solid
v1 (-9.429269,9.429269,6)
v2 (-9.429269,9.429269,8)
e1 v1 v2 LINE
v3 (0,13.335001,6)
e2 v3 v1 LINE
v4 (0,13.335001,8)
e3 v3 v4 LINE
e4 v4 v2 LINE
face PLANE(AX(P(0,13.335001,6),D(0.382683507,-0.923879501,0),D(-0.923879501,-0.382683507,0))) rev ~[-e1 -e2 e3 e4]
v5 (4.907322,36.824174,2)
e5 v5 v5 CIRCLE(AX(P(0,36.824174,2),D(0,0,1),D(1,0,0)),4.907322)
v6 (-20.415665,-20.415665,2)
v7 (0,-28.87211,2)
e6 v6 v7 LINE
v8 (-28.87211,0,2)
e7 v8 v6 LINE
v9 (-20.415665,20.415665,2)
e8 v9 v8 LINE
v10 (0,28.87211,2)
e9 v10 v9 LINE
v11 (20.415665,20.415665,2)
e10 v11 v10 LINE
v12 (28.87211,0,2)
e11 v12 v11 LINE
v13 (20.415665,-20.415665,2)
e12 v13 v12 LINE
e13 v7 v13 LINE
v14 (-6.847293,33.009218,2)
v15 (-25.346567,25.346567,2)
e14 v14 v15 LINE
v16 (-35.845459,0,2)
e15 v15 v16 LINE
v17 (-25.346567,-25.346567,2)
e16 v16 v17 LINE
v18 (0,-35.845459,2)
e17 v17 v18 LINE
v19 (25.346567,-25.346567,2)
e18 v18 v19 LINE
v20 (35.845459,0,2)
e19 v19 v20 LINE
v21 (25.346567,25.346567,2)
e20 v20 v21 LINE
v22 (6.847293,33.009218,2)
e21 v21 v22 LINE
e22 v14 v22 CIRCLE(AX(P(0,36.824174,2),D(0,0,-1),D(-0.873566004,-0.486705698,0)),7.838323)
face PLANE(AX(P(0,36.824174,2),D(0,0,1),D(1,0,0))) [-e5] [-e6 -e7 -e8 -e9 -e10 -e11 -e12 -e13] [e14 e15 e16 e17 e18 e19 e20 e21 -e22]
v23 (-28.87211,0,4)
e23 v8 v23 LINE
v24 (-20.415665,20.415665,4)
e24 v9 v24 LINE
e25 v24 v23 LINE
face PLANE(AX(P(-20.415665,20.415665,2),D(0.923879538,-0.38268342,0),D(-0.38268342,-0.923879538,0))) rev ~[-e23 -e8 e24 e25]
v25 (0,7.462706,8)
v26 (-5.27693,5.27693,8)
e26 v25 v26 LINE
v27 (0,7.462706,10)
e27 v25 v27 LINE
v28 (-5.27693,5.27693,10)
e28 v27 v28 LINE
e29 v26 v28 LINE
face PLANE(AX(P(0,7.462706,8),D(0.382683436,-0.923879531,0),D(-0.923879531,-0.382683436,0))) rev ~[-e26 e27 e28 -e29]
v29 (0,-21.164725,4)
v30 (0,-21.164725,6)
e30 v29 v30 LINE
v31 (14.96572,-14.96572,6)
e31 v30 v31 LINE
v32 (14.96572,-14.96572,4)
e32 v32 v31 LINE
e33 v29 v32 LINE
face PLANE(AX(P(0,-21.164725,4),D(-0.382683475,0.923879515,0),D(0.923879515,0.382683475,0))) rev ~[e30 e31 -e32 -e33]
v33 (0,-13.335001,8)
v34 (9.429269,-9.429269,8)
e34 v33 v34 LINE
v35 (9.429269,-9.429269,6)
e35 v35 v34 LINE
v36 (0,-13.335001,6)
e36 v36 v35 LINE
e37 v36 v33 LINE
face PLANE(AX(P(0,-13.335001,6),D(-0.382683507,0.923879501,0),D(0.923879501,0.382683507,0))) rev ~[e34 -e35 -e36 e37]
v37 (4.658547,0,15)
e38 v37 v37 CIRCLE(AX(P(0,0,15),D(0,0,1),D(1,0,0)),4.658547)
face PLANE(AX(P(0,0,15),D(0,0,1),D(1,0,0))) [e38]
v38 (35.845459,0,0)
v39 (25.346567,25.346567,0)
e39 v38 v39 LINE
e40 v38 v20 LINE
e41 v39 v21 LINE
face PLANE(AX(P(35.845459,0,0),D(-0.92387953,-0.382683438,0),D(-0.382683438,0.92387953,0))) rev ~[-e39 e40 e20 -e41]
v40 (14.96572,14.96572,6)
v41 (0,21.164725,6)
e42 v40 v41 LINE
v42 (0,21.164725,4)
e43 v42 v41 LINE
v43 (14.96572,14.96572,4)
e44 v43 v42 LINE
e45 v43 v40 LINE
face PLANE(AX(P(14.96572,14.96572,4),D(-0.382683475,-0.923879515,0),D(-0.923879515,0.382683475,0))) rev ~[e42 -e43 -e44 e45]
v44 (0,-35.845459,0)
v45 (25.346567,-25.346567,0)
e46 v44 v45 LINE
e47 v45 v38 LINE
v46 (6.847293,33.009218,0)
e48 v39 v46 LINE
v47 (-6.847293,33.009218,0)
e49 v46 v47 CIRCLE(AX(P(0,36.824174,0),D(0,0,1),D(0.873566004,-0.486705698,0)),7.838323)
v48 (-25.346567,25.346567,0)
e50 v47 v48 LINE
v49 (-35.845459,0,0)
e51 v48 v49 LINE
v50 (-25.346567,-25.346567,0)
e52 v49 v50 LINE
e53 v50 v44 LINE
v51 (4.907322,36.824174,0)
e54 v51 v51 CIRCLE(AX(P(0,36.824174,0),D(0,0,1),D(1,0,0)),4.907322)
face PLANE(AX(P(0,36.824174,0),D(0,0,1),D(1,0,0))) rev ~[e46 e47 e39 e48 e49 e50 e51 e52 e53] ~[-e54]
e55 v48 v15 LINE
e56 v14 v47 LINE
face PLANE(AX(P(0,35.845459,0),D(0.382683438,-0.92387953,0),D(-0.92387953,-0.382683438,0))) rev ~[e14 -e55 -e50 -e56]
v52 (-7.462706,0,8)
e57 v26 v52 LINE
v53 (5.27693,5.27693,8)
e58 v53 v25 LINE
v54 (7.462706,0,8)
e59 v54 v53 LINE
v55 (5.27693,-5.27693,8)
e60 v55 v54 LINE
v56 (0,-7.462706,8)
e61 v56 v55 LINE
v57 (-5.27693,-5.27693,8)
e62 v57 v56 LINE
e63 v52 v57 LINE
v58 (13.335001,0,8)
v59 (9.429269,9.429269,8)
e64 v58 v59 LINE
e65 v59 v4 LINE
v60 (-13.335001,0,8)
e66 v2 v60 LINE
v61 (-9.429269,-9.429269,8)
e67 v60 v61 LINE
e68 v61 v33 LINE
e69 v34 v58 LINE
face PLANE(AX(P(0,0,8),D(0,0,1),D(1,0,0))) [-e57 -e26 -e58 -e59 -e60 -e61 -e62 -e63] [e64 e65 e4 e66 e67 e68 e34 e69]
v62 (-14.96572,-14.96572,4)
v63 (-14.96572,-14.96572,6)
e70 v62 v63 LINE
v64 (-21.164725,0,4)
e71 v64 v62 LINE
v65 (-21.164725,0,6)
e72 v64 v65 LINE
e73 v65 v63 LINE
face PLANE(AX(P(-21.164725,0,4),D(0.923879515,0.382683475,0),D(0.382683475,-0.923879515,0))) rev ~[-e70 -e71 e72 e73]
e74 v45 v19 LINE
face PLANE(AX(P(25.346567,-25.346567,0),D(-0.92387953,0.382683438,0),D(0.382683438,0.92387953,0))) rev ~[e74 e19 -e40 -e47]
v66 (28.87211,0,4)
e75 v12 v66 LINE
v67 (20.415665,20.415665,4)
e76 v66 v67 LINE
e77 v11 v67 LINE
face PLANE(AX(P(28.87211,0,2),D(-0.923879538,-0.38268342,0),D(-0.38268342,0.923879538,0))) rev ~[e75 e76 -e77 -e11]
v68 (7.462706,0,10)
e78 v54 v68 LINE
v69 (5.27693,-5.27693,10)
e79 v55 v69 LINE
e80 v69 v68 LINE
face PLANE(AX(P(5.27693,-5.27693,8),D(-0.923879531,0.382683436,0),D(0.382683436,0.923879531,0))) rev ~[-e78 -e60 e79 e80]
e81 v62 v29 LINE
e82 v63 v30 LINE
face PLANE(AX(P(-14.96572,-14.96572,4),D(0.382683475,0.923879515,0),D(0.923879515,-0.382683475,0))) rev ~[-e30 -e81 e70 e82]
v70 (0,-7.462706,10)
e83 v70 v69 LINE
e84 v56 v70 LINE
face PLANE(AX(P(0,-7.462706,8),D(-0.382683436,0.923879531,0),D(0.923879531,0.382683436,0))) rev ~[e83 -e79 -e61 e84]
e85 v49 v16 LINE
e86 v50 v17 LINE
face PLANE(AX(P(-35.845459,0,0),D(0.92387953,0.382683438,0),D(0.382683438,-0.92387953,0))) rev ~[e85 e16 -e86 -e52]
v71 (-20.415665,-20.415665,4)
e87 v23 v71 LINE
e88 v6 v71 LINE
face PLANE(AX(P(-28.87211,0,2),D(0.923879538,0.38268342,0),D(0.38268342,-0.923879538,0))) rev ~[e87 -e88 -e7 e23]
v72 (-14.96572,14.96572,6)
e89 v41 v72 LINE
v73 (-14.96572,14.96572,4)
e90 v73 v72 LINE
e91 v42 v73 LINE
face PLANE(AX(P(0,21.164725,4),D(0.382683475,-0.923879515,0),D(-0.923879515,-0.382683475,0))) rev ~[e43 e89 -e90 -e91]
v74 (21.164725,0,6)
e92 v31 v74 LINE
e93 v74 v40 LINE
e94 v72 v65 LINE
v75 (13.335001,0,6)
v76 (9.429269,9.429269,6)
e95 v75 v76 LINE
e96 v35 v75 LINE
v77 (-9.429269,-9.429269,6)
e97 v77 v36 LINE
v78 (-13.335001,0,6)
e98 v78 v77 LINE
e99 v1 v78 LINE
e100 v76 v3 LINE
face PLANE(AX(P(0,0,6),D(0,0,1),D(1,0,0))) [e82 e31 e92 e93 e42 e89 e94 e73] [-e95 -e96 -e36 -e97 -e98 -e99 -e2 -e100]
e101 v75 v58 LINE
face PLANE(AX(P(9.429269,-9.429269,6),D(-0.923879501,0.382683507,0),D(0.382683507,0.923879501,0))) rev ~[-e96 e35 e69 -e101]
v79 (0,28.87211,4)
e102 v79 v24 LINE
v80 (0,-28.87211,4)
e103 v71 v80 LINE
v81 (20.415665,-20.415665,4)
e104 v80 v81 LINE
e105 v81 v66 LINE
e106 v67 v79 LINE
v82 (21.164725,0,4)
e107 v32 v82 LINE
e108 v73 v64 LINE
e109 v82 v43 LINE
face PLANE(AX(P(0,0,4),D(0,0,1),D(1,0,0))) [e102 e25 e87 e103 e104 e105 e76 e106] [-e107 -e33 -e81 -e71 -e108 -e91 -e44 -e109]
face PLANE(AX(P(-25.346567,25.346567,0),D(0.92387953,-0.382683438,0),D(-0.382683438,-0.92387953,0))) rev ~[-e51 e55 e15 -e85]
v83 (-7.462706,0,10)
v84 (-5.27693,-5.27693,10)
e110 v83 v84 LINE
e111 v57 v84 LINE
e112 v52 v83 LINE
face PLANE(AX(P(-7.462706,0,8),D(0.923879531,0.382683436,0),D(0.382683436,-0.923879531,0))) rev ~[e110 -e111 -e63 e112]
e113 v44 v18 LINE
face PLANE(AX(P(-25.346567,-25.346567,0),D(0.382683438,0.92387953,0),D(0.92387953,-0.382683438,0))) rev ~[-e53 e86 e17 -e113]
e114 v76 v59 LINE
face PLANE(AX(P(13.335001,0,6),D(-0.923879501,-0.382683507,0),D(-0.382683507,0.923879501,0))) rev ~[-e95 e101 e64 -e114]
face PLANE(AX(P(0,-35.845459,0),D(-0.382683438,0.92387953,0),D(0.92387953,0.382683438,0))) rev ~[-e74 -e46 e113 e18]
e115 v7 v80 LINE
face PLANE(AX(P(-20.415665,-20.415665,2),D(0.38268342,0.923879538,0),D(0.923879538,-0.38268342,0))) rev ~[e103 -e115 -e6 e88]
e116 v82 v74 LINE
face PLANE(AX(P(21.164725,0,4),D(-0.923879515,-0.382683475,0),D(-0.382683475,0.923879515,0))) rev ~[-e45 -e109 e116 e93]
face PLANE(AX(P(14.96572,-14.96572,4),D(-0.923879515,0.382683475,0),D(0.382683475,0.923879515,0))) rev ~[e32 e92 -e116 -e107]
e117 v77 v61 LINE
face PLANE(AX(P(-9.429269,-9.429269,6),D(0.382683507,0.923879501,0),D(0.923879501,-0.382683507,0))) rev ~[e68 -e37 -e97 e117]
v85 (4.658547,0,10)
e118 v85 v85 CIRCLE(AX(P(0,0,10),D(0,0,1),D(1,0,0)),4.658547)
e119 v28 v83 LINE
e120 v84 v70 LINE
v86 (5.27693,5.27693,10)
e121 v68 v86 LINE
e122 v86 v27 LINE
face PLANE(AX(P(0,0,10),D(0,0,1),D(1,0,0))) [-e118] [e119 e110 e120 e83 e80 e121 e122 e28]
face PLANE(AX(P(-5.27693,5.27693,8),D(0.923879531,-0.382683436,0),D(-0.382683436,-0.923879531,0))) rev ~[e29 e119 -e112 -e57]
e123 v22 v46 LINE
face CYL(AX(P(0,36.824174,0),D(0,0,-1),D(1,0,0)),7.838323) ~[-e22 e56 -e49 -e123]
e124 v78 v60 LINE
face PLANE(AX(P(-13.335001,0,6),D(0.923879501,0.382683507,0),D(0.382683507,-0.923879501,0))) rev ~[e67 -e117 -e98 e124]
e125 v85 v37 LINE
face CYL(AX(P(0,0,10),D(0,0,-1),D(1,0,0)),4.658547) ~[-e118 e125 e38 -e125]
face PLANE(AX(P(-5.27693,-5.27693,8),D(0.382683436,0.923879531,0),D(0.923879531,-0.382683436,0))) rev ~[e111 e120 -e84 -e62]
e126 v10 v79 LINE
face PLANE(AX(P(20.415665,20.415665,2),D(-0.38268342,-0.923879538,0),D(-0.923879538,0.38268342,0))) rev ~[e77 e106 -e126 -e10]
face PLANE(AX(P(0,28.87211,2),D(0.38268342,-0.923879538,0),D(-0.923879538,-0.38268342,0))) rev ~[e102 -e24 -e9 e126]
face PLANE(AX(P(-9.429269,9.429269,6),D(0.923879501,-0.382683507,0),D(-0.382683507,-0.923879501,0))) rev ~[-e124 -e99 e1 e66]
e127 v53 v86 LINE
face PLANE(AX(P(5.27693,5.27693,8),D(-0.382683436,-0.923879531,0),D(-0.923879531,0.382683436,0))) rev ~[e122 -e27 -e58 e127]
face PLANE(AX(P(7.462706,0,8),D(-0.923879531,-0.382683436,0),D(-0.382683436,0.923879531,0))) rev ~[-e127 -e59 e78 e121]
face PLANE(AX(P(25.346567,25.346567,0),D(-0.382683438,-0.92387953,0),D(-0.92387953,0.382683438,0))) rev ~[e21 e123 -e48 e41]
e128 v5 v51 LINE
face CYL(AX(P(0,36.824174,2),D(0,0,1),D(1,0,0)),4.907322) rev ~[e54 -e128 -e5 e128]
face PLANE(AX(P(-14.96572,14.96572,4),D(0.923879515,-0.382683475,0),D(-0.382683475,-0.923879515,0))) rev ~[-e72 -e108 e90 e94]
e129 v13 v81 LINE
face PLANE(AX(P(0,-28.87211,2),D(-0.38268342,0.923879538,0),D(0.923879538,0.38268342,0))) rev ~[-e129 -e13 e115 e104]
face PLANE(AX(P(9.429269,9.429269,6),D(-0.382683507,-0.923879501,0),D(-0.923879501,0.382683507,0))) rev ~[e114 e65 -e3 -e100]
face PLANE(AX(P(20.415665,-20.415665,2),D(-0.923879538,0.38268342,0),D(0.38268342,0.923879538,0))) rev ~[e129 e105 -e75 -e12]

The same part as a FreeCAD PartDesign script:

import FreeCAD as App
import Part
import Sketcher
Q = App.Units.Quantity

doc = App.newDocument("Part")
params = doc.addObject("Spreadsheet::Sheet", "Params")
for row, (alias, value) in enumerate([
    ("pad1_length", "2 mm"),
    ("pad2_length", "2 mm"),
    ("pad3_length", "2 mm"),
    ("pad4_length", "2 mm"),
    ("pad5_length", "2 mm"),
    ("pad6_length", "2 mm"),
    ("pocket1_length", "25.4 mm"),
    ("pad7_length", "5 mm"),
], start=1):
    params.set(f"A{row}", alias)
    params.set(f"B{row}", "=" + value)
    params.setAlias(f"B{row}", alias)

body = doc.addObject("PartDesign::Body", "Body")

# Sketch on XY plane
sketch1 = body.newObject("Sketcher::SketchObject", "Sketch")
sketch1.AttachmentSupport = (doc.getObject("XY_Plane"), [""])
sketch1.MapMode = "FlatFace"
sketch1.addGeometry([
    Part.LineSegment(App.Vector(25, 25, 0), App.Vector(0, 36, 0)),  # 0
    Part.LineSegment(App.Vector(0, 36, 0), App.Vector(-25, 25, 0)),  # 1
    Part.LineSegment(App.Vector(-25, 25, 0), App.Vector(-36, 0, 0)),  # 2
    Part.LineSegment(App.Vector(-36, 0, 0), App.Vector(-25, -25, 0)),  # 3
    Part.LineSegment(App.Vector(-25, -25, 0), App.Vector(0, -36, 0)),  # 4
    Part.LineSegment(App.Vector(0, -36, 0), App.Vector(25, -25, 0)),  # 5
    Part.LineSegment(App.Vector(25, -25, 0), App.Vector(36, 0, 0)),  # 6
    Part.LineSegment(App.Vector(36, 0, 0), App.Vector(25, 25, 0)),  # 7
], False)
sketch1.addConstraint([
    Sketcher.Constraint("Coincident", 0, 2, 1, 1),
    Sketcher.Constraint("Coincident", 1, 2, 2, 1),
    Sketcher.Constraint("Coincident", 2, 2, 3, 1),
    Sketcher.Constraint("Coincident", 3, 2, 4, 1),
    Sketcher.Constraint("Coincident", 4, 2, 5, 1),
    Sketcher.Constraint("Coincident", 5, 2, 6, 1),
    Sketcher.Constraint("Coincident", 6, 2, 7, 1),
    Sketcher.Constraint("Coincident", 7, 2, 0, 1),
    Sketcher.Constraint("Symmetric", 0, 2, 4, 2, -1, 1),
    Sketcher.Constraint("Symmetric", 1, 2, 5, 2, -1, 1),
    Sketcher.Constraint("Symmetric", 2, 2, 6, 2, -1, 1),
    Sketcher.Constraint("Symmetric", 3, 2, 7, 2, -1, 1),
    Sketcher.Constraint("Symmetric", 3, 2, 5, 2, -2),
    Sketcher.Constraint("PointOnObject", 0, 2, -2),
    Sketcher.Constraint("PointOnObject", 2, 2, -1),
    Sketcher.Constraint("Perpendicular", 0, 2),
    Sketcher.Constraint("Equal", 1, 2),
    Sketcher.Constraint("Angle", 0, Q("157.5 deg")),
    Sketcher.Constraint("DistanceY", -1, 1, 0, 2, 35.845459),
])
pad1 = body.newObject("PartDesign::Pad", "Pad")
pad1.Profile = sketch1
pad1.setExpression("Length", "Params.pad1_length")

# Sketch on XY plane
sketch2 = body.newObject("Sketcher::SketchObject", "Sketch001")
sketch2.AttachmentSupport = (doc.getObject("XY_Plane"), [""])
sketch2.MapMode = "FlatFace"
sketch2.AttachmentOffset = App.Placement(App.Vector(0, 0, 2), App.Rotation())
sketch2.addGeometry([
    Part.LineSegment(App.Vector(20, 20, 0), App.Vector(0, 29, 0)),  # 0
    Part.LineSegment(App.Vector(0, 29, 0), App.Vector(-20, 20, 0)),  # 1
    Part.LineSegment(App.Vector(-20, 20, 0), App.Vector(-29, 0, 0)),  # 2
    Part.LineSegment(App.Vector(-29, 0, 0), App.Vector(-20, -20, 0)),  # 3
    Part.LineSegment(App.Vector(-20, -20, 0), App.Vector(0, -29, 0)),  # 4
    Part.LineSegment(App.Vector(0, -29, 0), App.Vector(20, -20, 0)),  # 5
    Part.LineSegment(App.Vector(20, -20, 0), App.Vector(29, 0, 0)),  # 6
    Part.LineSegment(App.Vector(29, 0, 0), App.Vector(20, 20, 0)),  # 7
], False)
sketch2.addConstraint([
    Sketcher.Constraint("Coincident", 0, 2, 1, 1),
    Sketcher.Constraint("Coincident", 1, 2, 2, 1),
    Sketcher.Constraint("Coincident", 2, 2, 3, 1),
    Sketcher.Constraint("Coincident", 3, 2, 4, 1),
    Sketcher.Constraint("Coincident", 4, 2, 5, 1),
    Sketcher.Constraint("Coincident", 5, 2, 6, 1),
    Sketcher.Constraint("Coincident", 6, 2, 7, 1),
    Sketcher.Constraint("Coincident", 7, 2, 0, 1),
    Sketcher.Constraint("Symmetric", 0, 2, 4, 2, -1, 1),
    Sketcher.Constraint("Symmetric", 1, 2, 5, 2, -1, 1),
    Sketcher.Constraint("Symmetric", 2, 2, 6, 2, -1, 1),
    Sketcher.Constraint("Symmetric", 3, 2, 7, 2, -1, 1),
    Sketcher.Constraint("Symmetric", 3, 2, 5, 2, -2),
    Sketcher.Constraint("PointOnObject", 0, 2, -2),
    Sketcher.Constraint("PointOnObject", 2, 2, -1),
    Sketcher.Constraint("Perpendicular", 0, 2),
    Sketcher.Constraint("Equal", 1, 2),
    Sketcher.Constraint("Angle", 0, Q("157.500001 deg")),
    Sketcher.Constraint("DistanceY", -1, 1, 0, 2, 28.87211),
])
pad2 = body.newObject("PartDesign::Pad", "Pad001")
pad2.Profile = sketch2
pad2.setExpression("Length", "Params.pad2_length")

# Sketch on XY plane
sketch3 = body.newObject("Sketcher::SketchObject", "Sketch002")
sketch3.AttachmentSupport = (doc.getObject("XY_Plane"), [""])
sketch3.MapMode = "FlatFace"
sketch3.AttachmentOffset = App.Placement(App.Vector(0, 0, 4), App.Rotation())
sketch3.addGeometry([
    Part.LineSegment(App.Vector(15, 15, 0), App.Vector(0, 21, 0)),  # 0
    Part.LineSegment(App.Vector(0, 21, 0), App.Vector(-15, 15, 0)),  # 1
    Part.LineSegment(App.Vector(-15, 15, 0), App.Vector(-21, 0, 0)),  # 2
    Part.LineSegment(App.Vector(-21, 0, 0), App.Vector(-15, -15, 0)),  # 3
    Part.LineSegment(App.Vector(-15, -15, 0), App.Vector(0, -21, 0)),  # 4
    Part.LineSegment(App.Vector(0, -21, 0), App.Vector(15, -15, 0)),  # 5
    Part.LineSegment(App.Vector(15, -15, 0), App.Vector(21, 0, 0)),  # 6
    Part.LineSegment(App.Vector(21, 0, 0), App.Vector(15, 15, 0)),  # 7
], False)
sketch3.addConstraint([
    Sketcher.Constraint("Coincident", 0, 2, 1, 1),
    Sketcher.Constraint("Coincident", 1, 2, 2, 1),
    Sketcher.Constraint("Coincident", 2, 2, 3, 1),
    Sketcher.Constraint("Coincident", 3, 2, 4, 1),
    Sketcher.Constraint("Coincident", 4, 2, 5, 1),
    Sketcher.Constraint("Coincident", 5, 2, 6, 1),
    Sketcher.Constraint("Coincident", 6, 2, 7, 1),
    Sketcher.Constraint("Coincident", 7, 2, 0, 1),
    Sketcher.Constraint("Symmetric", 0, 2, 4, 2, -1, 1),
    Sketcher.Constraint("Symmetric", 1, 2, 5, 2, -1, 1),
    Sketcher.Constraint("Symmetric", 2, 2, 6, 2, -1, 1),
    Sketcher.Constraint("Symmetric", 3, 2, 7, 2, -1, 1),
    Sketcher.Constraint("Symmetric", 3, 2, 5, 2, -2),
    Sketcher.Constraint("PointOnObject", 0, 2, -2),
    Sketcher.Constraint("PointOnObject", 2, 2, -1),
    Sketcher.Constraint("Perpendicular", 0, 2),
    Sketcher.Constraint("Equal", 1, 2),
    Sketcher.Constraint("Angle", 0, Q("157.499997 deg")),
    Sketcher.Constraint("Distance", 0, 16.198779),
])
pad3 = body.newObject("PartDesign::Pad", "Pad002")
pad3.Profile = sketch3
pad3.setExpression("Length", "Params.pad3_length")

# Sketch on XY plane
sketch4 = body.newObject("Sketcher::SketchObject", "Sketch003")
sketch4.AttachmentSupport = (doc.getObject("XY_Plane"), [""])
sketch4.MapMode = "FlatFace"
sketch4.AttachmentOffset = App.Placement(App.Vector(0, 0, 6), App.Rotation())
sketch4.addGeometry([
    Part.LineSegment(App.Vector(9, 9, 0), App.Vector(0, 13, 0)),  # 0
    Part.LineSegment(App.Vector(0, 13, 0), App.Vector(-9, 9, 0)),  # 1
    Part.LineSegment(App.Vector(-9, 9, 0), App.Vector(-13, 0, 0)),  # 2
    Part.LineSegment(App.Vector(-13, 0, 0), App.Vector(-9, -9, 0)),  # 3
    Part.LineSegment(App.Vector(-9, -9, 0), App.Vector(0, -13, 0)),  # 4
    Part.LineSegment(App.Vector(0, -13, 0), App.Vector(9, -9, 0)),  # 5
    Part.LineSegment(App.Vector(9, -9, 0), App.Vector(13, 0, 0)),  # 6
    Part.LineSegment(App.Vector(13, 0, 0), App.Vector(9, 9, 0)),  # 7
], False)
sketch4.addConstraint([
    Sketcher.Constraint("Coincident", 0, 2, 1, 1),
    Sketcher.Constraint("Coincident", 1, 2, 2, 1),
    Sketcher.Constraint("Coincident", 2, 2, 3, 1),
    Sketcher.Constraint("Coincident", 3, 2, 4, 1),
    Sketcher.Constraint("Coincident", 4, 2, 5, 1),
    Sketcher.Constraint("Coincident", 5, 2, 6, 1),
    Sketcher.Constraint("Coincident", 6, 2, 7, 1),
    Sketcher.Constraint("Coincident", 7, 2, 0, 1),
    Sketcher.Constraint("Symmetric", 0, 2, 4, 2, -1, 1),
    Sketcher.Constraint("Symmetric", 1, 2, 5, 2, -1, 1),
    Sketcher.Constraint("Symmetric", 2, 2, 6, 2, -1, 1),
    Sketcher.Constraint("Symmetric", 3, 2, 7, 2, -1, 1),
    Sketcher.Constraint("Symmetric", 3, 2, 5, 2, -2),
    Sketcher.Constraint("PointOnObject", 0, 2, -2),
    Sketcher.Constraint("PointOnObject", 2, 2, -1),
    Sketcher.Constraint("Perpendicular", 0, 2),
    Sketcher.Constraint("Equal", 1, 2),
    Sketcher.Constraint("Angle", 0, Q("157.499995 deg")),
    Sketcher.Constraint("DistanceY", 4, 2, 0, 2, 26.670002),
])
pad4 = body.newObject("PartDesign::Pad", "Pad003")
pad4.Profile = sketch4
pad4.setExpression("Length", "Params.pad4_length")

# Sketch on XY plane
sketch5 = body.newObject("Sketcher::SketchObject", "Sketch004")
sketch5.AttachmentSupport = (doc.getObject("XY_Plane"), [""])
sketch5.MapMode = "FlatFace"
sketch5.AttachmentOffset = App.Placement(App.Vector(0, 0, 8), App.Rotation())
sketch5.addGeometry([
    Part.LineSegment(App.Vector(5, 5, 0), App.Vector(0, 7, 0)),  # 0
    Part.LineSegment(App.Vector(0, 7, 0), App.Vector(-5, 5, 0)),  # 1
    Part.LineSegment(App.Vector(-5, 5, 0), App.Vector(-7, 0, 0)),  # 2
    Part.LineSegment(App.Vector(-7, 0, 0), App.Vector(-5, -5, 0)),  # 3
    Part.LineSegment(App.Vector(-5, -5, 0), App.Vector(0, -7, 0)),  # 4
    Part.LineSegment(App.Vector(0, -7, 0), App.Vector(5, -5, 0)),  # 5
    Part.LineSegment(App.Vector(5, -5, 0), App.Vector(7, 0, 0)),  # 6
    Part.LineSegment(App.Vector(7, 0, 0), App.Vector(5, 5, 0)),  # 7
], False)
sketch5.addConstraint([
    Sketcher.Constraint("Coincident", 0, 2, 1, 1),
    Sketcher.Constraint("Coincident", 1, 2, 2, 1),
    Sketcher.Constraint("Coincident", 2, 2, 3, 1),
    Sketcher.Constraint("Coincident", 3, 2, 4, 1),
    Sketcher.Constraint("Coincident", 4, 2, 5, 1),
    Sketcher.Constraint("Coincident", 5, 2, 6, 1),
    Sketcher.Constraint("Coincident", 6, 2, 7, 1),
    Sketcher.Constraint("Coincident", 7, 2, 0, 1),
    Sketcher.Constraint("Symmetric", 0, 2, 4, 2, -1, 1),
    Sketcher.Constraint("Symmetric", 1, 2, 5, 2, -1, 1),
    Sketcher.Constraint("Symmetric", 2, 2, 6, 2, -1, 1),
    Sketcher.Constraint("Symmetric", 3, 2, 7, 2, -1, 1),
    Sketcher.Constraint("Symmetric", 3, 2, 5, 2, -2),
    Sketcher.Constraint("PointOnObject", 0, 2, -2),
    Sketcher.Constraint("PointOnObject", 2, 2, -1),
    Sketcher.Constraint("Perpendicular", 0, 2),
    Sketcher.Constraint("Equal", 1, 2),
    Sketcher.Constraint("Angle", 0, Q("157.5 deg")),
    Sketcher.Constraint("DistanceX", 1, 2, -1, 1, 5.27693),
])
pad5 = body.newObject("PartDesign::Pad", "Pad004")
pad5.Profile = sketch5
pad5.setExpression("Length", "Params.pad5_length")

# Sketch on XY plane
sketch6 = body.newObject("Sketcher::SketchObject", "Sketch005")
sketch6.AttachmentSupport = (doc.getObject("XY_Plane"), [""])
sketch6.MapMode = "FlatFace"
sketch6.addGeometry(Part.Circle(App.Vector(0, 37, 0), App.Vector(0, 0, 1), 8), False)
sketch6.addConstraint([
    Sketcher.Constraint("PointOnObject", 0, 3, -2),
    Sketcher.Constraint("Diameter", 0, 15.676646),
    Sketcher.Constraint("DistanceY", -1, 1, 0, 3, 36.824174),
])
pad6 = body.newObject("PartDesign::Pad", "Pad005")
pad6.Profile = sketch6
pad6.setExpression("Length", "Params.pad6_length")

# Sketch on XY plane
sketch7 = body.newObject("Sketcher::SketchObject", "Sketch006")
sketch7.AttachmentSupport = (doc.getObject("XY_Plane"), [""])
sketch7.MapMode = "FlatFace"
sketch7.AttachmentOffset = App.Placement(App.Vector(0, 0, 2), App.Rotation())
sketch7.addGeometry(Part.Circle(App.Vector(0, 36.8, 0), App.Vector(0, 0, 1), 4.9), False)
sketch7.addConstraint([
    Sketcher.Constraint("PointOnObject", 0, 3, -2),
    Sketcher.Constraint("Diameter", 0, 9.814644),
    Sketcher.Constraint("DistanceY", -1, 1, 0, 3, 36.824174),
])
pocket1 = body.newObject("PartDesign::Pocket", "Pocket")
pocket1.Profile = sketch7
pocket1.setExpression("Length", "Params.pocket1_length")

# Sketch on XY plane
sketch8 = body.newObject("Sketcher::SketchObject", "Sketch007")
sketch8.AttachmentSupport = (doc.getObject("XY_Plane"), [""])
sketch8.MapMode = "FlatFace"
sketch8.AttachmentOffset = App.Placement(App.Vector(0, 0, 10), App.Rotation())
sketch8.addGeometry(Part.Circle(App.Vector(0, 0, 0), App.Vector(0, 0, 1), 4.7), False)
sketch8.addConstraint([
    Sketcher.Constraint("Coincident", 0, 3, -1, 1),
    Sketcher.Constraint("Diameter", 0, 9.317094),
])
pad7 = body.newObject("PartDesign::Pad", "Pad006")
pad7.Profile = sketch8
pad7.setExpression("Length", "Params.pad7_length")

doc.recompute()
